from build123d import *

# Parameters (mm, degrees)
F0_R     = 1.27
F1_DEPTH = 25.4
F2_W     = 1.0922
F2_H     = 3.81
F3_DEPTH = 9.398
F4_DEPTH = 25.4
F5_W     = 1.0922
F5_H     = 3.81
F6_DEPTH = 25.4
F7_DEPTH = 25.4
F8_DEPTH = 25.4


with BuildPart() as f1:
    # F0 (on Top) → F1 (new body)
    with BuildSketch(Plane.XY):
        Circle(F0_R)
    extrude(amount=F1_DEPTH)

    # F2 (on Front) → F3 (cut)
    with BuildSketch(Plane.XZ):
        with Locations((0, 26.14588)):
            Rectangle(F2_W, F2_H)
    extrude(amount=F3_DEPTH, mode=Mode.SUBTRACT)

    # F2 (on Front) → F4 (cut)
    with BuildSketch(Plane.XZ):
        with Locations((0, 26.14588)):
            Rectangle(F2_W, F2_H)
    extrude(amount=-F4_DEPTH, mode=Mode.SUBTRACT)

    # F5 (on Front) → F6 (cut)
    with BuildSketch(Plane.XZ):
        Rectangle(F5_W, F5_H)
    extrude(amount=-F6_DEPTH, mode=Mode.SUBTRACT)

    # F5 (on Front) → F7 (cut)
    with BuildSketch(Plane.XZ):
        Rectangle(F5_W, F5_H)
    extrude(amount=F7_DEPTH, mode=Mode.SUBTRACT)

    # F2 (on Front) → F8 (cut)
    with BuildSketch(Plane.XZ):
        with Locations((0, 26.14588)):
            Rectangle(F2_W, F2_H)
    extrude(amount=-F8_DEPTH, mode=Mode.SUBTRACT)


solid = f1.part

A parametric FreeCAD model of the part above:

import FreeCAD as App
import Part
import Sketcher
from FreeCAD import Vector
Q = App.Units.Quantity

doc = App.newDocument("Part")
body = doc.addObject("PartDesign::Body", "Body")

# Sketch on XY plane
sketch1 = doc.addObject("Sketcher::SketchObject", "Sketch")
body.addObject(sketch1)
sketch1.AttachmentSupport = (doc.XY_Plane, [""])
sketch1.MapMode = "FlatFace"
sketch1.addGeometry(Part.Circle(Vector(0, 0, 0), Vector(0, 0, 1), 1.3), False)
sketch1.addConstraint([
    Sketcher.Constraint("Coincident", 0, 3, -1, 1),
    Sketcher.Constraint("Diameter", 0, Q("0.1 in")),
])
pad1 = doc.addObject("PartDesign::Pad", "Pad")
body.addObject(pad1)
pad1.Profile = sketch1
pad1.Length = Q("1 in")

# Sketch on XZ plane
sketch2 = doc.addObject("Sketcher::SketchObject", "Sketch001")
body.addObject(sketch2)
sketch2.AttachmentSupport = (doc.XZ_Plane, [""])
sketch2.MapMode = "FlatFace"
sketch2.addGeometry([
    Part.LineSegment(Vector(-0.5, 28.1, 0), Vector(-0.5, 24.2, 0)),
    Part.LineSegment(Vector(-0.5, 24.2, 0), Vector(0.5, 24.2, 0)),
    Part.LineSegment(Vector(0.5, 24.2, 0), Vector(0.5, 28.1, 0)),
    Part.LineSegment(Vector(0.5, 28.1, 0), Vector(-0.5, 28.1, 0)),
], False)
sketch2.addConstraint([
    Sketcher.Constraint("Coincident", 0, 2, 1, 1),
    Sketcher.Constraint("Coincident", 1, 2, 2, 1),
    Sketcher.Constraint("Coincident", 2, 2, 3, 1),
    Sketcher.Constraint("Coincident", 3, 2, 0, 1),
    Sketcher.Constraint("Vertical", 0),
    Sketcher.Constraint("Horizontal", 1),
    Sketcher.Constraint("Vertical", 2),
    Sketcher.Constraint("Horizontal", 3),
    Sketcher.Constraint("DistanceY", 0, 2, 0, 1, Q("0.15 in")),
    Sketcher.Constraint("DistanceX", 1, 1, 1, 2, Q("0.043 in")),
    Sketcher.Constraint("DistanceX", 0, 2, -1, 1, Q("0.0215 in")),
    Sketcher.Constraint("DistanceY", -1, 1, 0, 2, Q("24.24088 mm")),
])
pocket1 = doc.addObject("PartDesign::Pocket", "Pocket")
body.addObject(pocket1)
pocket1.Profile = sketch2
pocket1.Length = Q("0.37 in")
pocket1.Reversed = True

# Sketch on XZ plane
sketch3 = doc.addObject("Sketcher::SketchObject", "Sketch002")
body.addObject(sketch3)
sketch3.AttachmentSupport = (doc.XZ_Plane, [""])
sketch3.MapMode = "FlatFace"
sketch3.addGeometry([
    Part.LineSegment(Vector(-0.5, 28.1, 0), Vector(-0.5, 24.2, 0)),
    Part.LineSegment(Vector(-0.5, 24.2, 0), Vector(0.5, 24.2, 0)),
    Part.LineSegment(Vector(0.5, 24.2, 0), Vector(0.5, 28.1, 0)),
    Part.LineSegment(Vector(0.5, 28.1, 0), Vector(-0.5, 28.1, 0)),
], False)
sketch3.addConstraint([
    Sketcher.Constraint("Coincident", 0, 2, 1, 1),
    Sketcher.Constraint("Coincident", 1, 2, 2, 1),
    Sketcher.Constraint("Coincident", 2, 2, 3, 1),
    Sketcher.Constraint("Coincident", 3, 2, 0, 1),
    Sketcher.Constraint("Vertical", 0),
    Sketcher.Constraint("Horizontal", 1),
    Sketcher.Constraint("Vertical", 2),
    Sketcher.Constraint("Horizontal", 3),
    Sketcher.Constraint("DistanceY", 0, 2, 0, 1, Q("0.15 in")),
    Sketcher.Constraint("DistanceX", 1, 1, 1, 2, Q("0.043 in")),
    Sketcher.Constraint("DistanceX", 0, 2, -1, 1, Q("0.0215 in")),
    Sketcher.Constraint("DistanceY", -1, 1, 0, 2, Q("24.24088 mm")),
])
pocket2 = doc.addObject("PartDesign::Pocket", "Pocket001")
body.addObject(pocket2)
pocket2.Profile = sketch3
pocket2.Length = Q("1 in")

# Sketch on XZ plane
sketch4 = doc.addObject("Sketcher::SketchObject", "Sketch003")
body.addObject(sketch4)
sketch4.AttachmentSupport = (doc.XZ_Plane, [""])
sketch4.MapMode = "FlatFace"
sketch4.addGeometry([
    Part.LineSegment(Vector(-0.5, 1.9, 0), Vector(-0.5, -1.9, 0)),
    Part.LineSegment(Vector(-0.5, -1.9, 0), Vector(0.5, -1.9, 0)),
    Part.LineSegment(Vector(0.5, -1.9, 0), Vector(0.5, 1.9, 0)),
    Part.LineSegment(Vector(0.5, 1.9, 0), Vector(-0.5, 1.9, 0)),
], False)
sketch4.addConstraint([
    Sketcher.Constraint("Coincident", 0, 2, 1, 1),
    Sketcher.Constraint("Coincident", 1, 2, 2, 1),
    Sketcher.Constraint("Coincident", 2, 2, 3, 1),
    Sketcher.Constraint("Coincident", 3, 2, 0, 1),
    Sketcher.Constraint("Vertical", 0),
    Sketcher.Constraint("Horizontal", 1),
    Sketcher.Constraint("Vertical", 2),
    Sketcher.Constraint("Horizontal", 3),
    Sketcher.Constraint("Symmetric", 0, 2, 2, 2, -1, 1),
    Sketcher.Constraint("DistanceY", 0, 2, 0, 1, Q("0.15 in")),
    Sketcher.Constraint("DistanceX", 1, 1, 1, 2, Q("0.043 in")),
])
pocket3 = doc.addObject("PartDesign::Pocket", "Pocket002")
body.addObject(pocket3)
pocket3.Profile = sketch4
pocket3.Length = Q("1 in")

# Sketch on XZ plane
sketch5 = doc.addObject("Sketcher::SketchObject", "Sketch004")
body.addObject(sketch5)
sketch5.AttachmentSupport = (doc.XZ_Plane, [""])
sketch5.MapMode = "FlatFace"
sketch5.addGeometry([
    Part.LineSegment(Vector(-0.5, 1.9, 0), Vector(-0.5, -1.9, 0)),
    Part.LineSegment(Vector(-0.5, -1.9, 0), Vector(0.5, -1.9, 0)),
    Part.LineSegment(Vector(0.5, -1.9, 0), Vector(0.5, 1.9, 0)),
    Part.LineSegment(Vector(0.5, 1.9, 0), Vector(-0.5, 1.9, 0)),
], False)
sketch5.addConstraint([
    Sketcher.Constraint("Coincident", 0, 2, 1, 1),
    Sketcher.Constraint("Coincident", 1, 2, 2, 1),
    Sketcher.Constraint("Coincident", 2, 2, 3, 1),
    Sketcher.Constraint("Coincident", 3, 2, 0, 1),
    Sketcher.Constraint("Vertical", 0),
    Sketcher.Constraint("Horizontal", 1),
    Sketcher.Constraint("Vertical", 2),
    Sketcher.Constraint("Horizontal", 3),
    Sketcher.Constraint("Symmetric", 0, 2, 2, 2, -1, 1),
    Sketcher.Constraint("DistanceY", 0, 2, 0, 1, Q("0.15 in")),
    Sketcher.Constraint("DistanceX", 1, 1, 1, 2, Q("0.043 in")),
])
pocket4 = doc.addObject("PartDesign::Pocket", "Pocket003")
body.addObject(pocket4)
pocket4.Profile = sketch5
pocket4.Length = Q("1 in")
pocket4.Reversed = True

# Sketch on XZ plane
sketch6 = doc.addObject("Sketcher::SketchObject", "Sketch005")
body.addObject(sketch6)
sketch6.AttachmentSupport = (doc.XZ_Plane, [""])
sketch6.MapMode = "FlatFace"
sketch6.addGeometry([
    Part.LineSegment(Vector(-0.5, 28.1, 0), Vector(-0.5, 24.2, 0)),
    Part.LineSegment(Vector(-0.5, 24.2, 0), Vector(0.5, 24.2, 0)),
    Part.LineSegment(Vector(0.5, 24.2, 0), Vector(0.5, 28.1, 0)),
    Part.LineSegment(Vector(0.5, 28.1, 0), Vector(-0.5, 28.1, 0)),
], False)
sketch6.addConstraint([
    Sketcher.Constraint("Coincident", 0, 2, 1, 1),
    Sketcher.Constraint("Coincident", 1, 2, 2, 1),
    Sketcher.Constraint("Coincident", 2, 2, 3, 1),
    Sketcher.Constraint("Coincident", 3, 2, 0, 1),
    Sketcher.Constraint("Vertical", 0),
    Sketcher.Constraint("Horizontal", 1),
    Sketcher.Constraint("Vertical", 2),
    Sketcher.Constraint("Horizontal", 3),
    Sketcher.Constraint("DistanceY", 0, 2, 0, 1, Q("0.15 in")),
    Sketcher.Constraint("DistanceX", 1, 1, 1, 2, Q("0.043 in")),
    Sketcher.Constraint("DistanceX", 0, 2, -1, 1, Q("0.0215 in")),
    Sketcher.Constraint("DistanceY", -1, 1, 0, 2, Q("24.24088 mm")),
])
pocket5 = doc.addObject("PartDesign::Pocket", "Pocket004")
body.addObject(pocket5)
pocket5.Profile = sketch6
pocket5.Length = Q("1 in")

doc.recompute()
